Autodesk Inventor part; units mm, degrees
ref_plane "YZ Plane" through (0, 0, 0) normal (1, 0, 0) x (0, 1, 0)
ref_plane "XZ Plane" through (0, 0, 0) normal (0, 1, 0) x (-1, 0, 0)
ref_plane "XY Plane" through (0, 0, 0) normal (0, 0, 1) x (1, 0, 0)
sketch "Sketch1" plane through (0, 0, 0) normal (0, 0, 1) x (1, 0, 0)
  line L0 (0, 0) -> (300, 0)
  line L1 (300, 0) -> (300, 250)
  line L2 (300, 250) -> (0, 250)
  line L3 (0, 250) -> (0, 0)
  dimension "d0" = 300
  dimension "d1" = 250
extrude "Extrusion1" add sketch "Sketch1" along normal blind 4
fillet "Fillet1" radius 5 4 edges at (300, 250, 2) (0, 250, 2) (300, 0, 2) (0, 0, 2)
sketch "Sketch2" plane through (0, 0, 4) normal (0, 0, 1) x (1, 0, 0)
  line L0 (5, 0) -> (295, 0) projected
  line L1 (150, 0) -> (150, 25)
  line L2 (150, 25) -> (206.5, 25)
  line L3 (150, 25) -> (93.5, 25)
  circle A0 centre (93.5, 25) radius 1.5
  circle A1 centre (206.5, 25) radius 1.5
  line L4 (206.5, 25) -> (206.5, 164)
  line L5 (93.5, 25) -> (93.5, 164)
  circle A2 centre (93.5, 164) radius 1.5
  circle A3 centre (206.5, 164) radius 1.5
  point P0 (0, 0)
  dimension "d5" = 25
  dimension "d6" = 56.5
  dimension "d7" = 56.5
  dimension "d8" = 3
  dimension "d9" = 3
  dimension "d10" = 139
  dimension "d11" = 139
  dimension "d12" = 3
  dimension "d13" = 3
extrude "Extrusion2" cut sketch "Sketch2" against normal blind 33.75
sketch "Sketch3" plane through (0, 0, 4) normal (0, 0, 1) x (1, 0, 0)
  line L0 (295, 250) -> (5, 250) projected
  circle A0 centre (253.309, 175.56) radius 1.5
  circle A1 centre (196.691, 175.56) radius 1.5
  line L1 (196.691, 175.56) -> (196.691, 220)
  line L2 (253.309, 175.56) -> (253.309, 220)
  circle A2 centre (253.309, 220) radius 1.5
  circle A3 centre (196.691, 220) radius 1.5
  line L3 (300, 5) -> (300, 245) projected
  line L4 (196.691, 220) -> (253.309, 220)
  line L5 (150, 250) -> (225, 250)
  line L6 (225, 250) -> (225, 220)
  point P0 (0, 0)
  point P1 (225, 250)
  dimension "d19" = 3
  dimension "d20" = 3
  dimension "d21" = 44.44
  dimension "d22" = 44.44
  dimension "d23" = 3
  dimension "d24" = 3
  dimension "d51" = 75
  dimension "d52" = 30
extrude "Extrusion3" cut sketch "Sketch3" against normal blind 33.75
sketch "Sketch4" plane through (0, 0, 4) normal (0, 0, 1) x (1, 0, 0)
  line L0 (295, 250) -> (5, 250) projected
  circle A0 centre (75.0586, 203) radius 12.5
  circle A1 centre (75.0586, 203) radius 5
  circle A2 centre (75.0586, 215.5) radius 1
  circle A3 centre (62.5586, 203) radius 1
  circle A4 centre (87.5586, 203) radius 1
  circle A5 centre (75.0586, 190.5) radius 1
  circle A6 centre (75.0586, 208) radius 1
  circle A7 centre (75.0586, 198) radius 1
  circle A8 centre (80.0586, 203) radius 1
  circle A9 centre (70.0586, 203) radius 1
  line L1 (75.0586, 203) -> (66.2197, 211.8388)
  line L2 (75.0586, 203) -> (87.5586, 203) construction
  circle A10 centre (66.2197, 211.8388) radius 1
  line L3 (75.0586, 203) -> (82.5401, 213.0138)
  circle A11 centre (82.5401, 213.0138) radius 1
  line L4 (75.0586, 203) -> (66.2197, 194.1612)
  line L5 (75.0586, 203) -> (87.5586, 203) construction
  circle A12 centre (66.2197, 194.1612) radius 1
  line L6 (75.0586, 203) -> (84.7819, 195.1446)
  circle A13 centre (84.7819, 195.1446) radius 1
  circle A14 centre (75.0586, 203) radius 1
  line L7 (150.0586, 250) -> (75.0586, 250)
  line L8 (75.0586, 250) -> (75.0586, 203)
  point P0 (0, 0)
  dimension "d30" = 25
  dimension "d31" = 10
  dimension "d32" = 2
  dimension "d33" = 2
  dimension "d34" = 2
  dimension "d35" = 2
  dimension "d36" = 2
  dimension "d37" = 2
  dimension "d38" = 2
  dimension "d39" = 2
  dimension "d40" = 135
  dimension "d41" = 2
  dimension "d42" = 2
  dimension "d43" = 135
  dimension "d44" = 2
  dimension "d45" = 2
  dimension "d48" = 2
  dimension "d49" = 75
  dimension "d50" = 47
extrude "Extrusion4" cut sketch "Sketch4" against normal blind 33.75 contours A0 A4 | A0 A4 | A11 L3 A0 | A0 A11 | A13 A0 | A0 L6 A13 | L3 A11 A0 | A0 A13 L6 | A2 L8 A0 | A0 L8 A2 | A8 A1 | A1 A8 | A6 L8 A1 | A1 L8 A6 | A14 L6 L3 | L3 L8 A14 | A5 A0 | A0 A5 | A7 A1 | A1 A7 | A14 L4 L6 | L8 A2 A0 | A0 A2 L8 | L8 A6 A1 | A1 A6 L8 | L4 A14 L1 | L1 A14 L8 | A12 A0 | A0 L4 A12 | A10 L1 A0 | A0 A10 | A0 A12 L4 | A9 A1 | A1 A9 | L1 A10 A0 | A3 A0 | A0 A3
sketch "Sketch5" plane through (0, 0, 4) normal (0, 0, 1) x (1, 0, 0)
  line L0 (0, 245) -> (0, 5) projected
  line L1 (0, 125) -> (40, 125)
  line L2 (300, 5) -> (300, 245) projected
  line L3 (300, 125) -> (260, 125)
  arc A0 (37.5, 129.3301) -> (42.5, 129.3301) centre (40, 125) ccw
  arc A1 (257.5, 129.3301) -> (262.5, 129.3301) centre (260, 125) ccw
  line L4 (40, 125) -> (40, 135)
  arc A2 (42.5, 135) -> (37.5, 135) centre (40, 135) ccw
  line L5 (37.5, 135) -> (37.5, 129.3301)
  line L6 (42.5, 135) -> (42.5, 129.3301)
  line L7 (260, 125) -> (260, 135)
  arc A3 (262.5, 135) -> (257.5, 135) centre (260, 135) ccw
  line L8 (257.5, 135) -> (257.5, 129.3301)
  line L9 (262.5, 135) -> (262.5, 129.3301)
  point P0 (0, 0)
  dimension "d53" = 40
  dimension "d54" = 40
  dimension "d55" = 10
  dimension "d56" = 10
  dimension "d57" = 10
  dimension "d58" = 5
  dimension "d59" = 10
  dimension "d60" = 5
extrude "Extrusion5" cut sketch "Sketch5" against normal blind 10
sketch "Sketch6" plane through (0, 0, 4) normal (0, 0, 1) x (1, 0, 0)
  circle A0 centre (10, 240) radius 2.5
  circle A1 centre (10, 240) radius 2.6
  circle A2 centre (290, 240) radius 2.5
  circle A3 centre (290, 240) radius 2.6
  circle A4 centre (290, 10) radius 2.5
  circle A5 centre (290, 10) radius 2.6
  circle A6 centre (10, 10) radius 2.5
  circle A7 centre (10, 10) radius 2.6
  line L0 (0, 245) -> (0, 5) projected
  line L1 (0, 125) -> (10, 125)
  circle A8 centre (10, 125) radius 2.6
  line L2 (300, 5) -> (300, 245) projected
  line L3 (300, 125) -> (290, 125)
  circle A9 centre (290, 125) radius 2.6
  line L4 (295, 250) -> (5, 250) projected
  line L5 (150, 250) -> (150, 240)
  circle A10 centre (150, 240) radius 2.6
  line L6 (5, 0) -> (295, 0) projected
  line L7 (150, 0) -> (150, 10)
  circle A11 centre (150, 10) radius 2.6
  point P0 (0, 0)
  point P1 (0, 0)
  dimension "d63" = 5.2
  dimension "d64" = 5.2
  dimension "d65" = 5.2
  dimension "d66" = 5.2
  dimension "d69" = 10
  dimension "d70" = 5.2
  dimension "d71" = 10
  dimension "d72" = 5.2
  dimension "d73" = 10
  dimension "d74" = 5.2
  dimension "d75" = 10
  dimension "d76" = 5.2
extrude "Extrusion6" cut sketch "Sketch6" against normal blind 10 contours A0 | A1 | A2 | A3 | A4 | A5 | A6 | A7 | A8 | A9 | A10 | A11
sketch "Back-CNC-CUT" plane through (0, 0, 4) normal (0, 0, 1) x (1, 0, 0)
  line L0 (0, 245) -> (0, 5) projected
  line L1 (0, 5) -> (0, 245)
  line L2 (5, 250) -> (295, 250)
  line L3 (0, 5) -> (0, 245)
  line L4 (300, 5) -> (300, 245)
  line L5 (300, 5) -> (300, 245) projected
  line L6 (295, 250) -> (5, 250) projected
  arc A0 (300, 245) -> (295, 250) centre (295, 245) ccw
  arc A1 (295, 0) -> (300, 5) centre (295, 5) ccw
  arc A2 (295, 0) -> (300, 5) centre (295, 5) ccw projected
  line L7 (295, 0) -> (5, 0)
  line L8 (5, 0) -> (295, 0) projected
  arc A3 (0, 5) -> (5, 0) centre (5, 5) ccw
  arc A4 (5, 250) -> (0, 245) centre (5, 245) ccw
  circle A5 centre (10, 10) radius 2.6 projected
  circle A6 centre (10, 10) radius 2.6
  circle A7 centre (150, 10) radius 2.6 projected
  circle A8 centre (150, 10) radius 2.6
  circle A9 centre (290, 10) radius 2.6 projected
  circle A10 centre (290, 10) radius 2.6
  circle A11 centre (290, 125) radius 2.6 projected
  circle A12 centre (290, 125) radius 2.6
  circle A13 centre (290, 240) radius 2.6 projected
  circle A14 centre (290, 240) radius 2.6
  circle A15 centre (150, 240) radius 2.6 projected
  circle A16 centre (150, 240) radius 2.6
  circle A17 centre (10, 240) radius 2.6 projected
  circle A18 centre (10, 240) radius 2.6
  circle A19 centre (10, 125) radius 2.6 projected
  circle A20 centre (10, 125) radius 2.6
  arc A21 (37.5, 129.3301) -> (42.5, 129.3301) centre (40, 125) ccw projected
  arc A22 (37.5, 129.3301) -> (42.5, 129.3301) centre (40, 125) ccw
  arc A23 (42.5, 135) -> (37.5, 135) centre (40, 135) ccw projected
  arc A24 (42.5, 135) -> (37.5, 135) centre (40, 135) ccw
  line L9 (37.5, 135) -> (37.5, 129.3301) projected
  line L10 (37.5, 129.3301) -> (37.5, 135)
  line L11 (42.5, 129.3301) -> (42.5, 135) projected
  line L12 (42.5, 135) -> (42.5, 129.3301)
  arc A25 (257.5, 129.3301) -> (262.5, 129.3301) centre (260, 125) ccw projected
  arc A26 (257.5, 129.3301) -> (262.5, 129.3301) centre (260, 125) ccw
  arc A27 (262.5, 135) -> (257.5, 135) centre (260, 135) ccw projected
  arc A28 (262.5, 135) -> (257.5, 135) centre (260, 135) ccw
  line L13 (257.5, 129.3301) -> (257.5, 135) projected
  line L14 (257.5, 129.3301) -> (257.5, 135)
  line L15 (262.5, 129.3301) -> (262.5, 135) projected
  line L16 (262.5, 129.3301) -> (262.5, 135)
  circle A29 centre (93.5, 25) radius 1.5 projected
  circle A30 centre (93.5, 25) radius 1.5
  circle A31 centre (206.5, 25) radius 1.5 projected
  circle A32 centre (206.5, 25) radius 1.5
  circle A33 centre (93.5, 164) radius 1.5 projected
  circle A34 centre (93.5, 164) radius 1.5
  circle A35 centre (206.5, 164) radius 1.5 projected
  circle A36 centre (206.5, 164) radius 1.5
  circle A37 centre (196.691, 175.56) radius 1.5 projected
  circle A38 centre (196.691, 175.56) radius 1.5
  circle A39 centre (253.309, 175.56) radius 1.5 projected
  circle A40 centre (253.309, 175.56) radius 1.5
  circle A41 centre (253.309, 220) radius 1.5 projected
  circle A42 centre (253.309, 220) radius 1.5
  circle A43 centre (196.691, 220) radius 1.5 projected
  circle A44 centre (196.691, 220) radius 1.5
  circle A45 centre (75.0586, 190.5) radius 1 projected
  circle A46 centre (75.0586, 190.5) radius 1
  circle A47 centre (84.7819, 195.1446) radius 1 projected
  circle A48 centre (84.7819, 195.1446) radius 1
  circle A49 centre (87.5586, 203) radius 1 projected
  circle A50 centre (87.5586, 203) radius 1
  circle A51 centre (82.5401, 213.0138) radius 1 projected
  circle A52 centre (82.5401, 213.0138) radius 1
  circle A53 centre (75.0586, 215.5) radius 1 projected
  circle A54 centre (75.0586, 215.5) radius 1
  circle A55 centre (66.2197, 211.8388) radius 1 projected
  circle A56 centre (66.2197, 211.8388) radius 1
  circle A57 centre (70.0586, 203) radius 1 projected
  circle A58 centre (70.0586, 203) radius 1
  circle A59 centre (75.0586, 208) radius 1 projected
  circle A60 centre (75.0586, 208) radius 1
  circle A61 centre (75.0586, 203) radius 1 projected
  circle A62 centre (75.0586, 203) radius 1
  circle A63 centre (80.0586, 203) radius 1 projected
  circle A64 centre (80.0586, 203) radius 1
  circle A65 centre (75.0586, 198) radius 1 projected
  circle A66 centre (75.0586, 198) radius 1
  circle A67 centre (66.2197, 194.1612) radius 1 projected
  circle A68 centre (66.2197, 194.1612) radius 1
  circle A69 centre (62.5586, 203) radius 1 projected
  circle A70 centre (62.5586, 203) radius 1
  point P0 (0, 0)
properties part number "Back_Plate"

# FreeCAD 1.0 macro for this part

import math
import FreeCAD as App
import Part
import Sketcher

V = App.Vector


def edges_at(feature, points):
    """Names of the edges that pass closest to the given points."""
    edges = feature.Shape.Edges
    near = lambda p: min(range(len(edges)), key=lambda i: edges[i].distToShape(Part.Vertex(*p))[0])
    return sorted({f"Edge{near(p) + 1}" for p in points})

doc = App.newDocument("Part")
body = doc.addObject("PartDesign::Body", "Body")

sketch1 = doc.addObject("Sketcher::SketchObject", "Sketch")
body.addObject(sketch1)
sketch1.AttachmentSupport = (doc.XY_Plane, [""])
sketch1.MapMode = "FlatFace"
sketch1.addGeometry([
    Part.LineSegment(V(0, 250, 0), V(0, 0, 0)),
    Part.LineSegment(V(0, 0, 0), V(300, 0, 0)),
    Part.LineSegment(V(300, 0, 0), V(300, 250, 0)),
    Part.LineSegment(V(300, 250, 0), V(0, 250, 0)),
], False)
sketch1.addConstraint([
    Sketcher.Constraint("Coincident", 0, 2, 1, 1),
    Sketcher.Constraint("Coincident", 1, 2, 2, 1),
    Sketcher.Constraint("Coincident", 2, 2, 3, 1),
    Sketcher.Constraint("Coincident", 3, 2, 0, 1),
    Sketcher.Constraint("Vertical", 0),
    Sketcher.Constraint("Horizontal", 1),
    Sketcher.Constraint("Vertical", 2),
    Sketcher.Constraint("Horizontal", 3),
    Sketcher.Constraint("Coincident", 0, 2, -1, 1),
    Sketcher.Constraint("DistanceX", 1, 1, 1, 2, 300.0),
    Sketcher.Constraint("DistanceY", 0, 2, 0, 1, 250.0),
])
pad1 = doc.addObject("PartDesign::Pad", "Pad")
body.addObject(pad1)
pad1.Profile = sketch1
pad1.Length = 4
doc.recompute()

fillet = doc.addObject("PartDesign::Fillet", "Fillet")
body.addObject(fillet)
fillet.Base = (pad1, edges_at(pad1, [
    (300, 250, 2),
    (0, 250, 2),
    (300, 0, 2),
    (0, 0, 2),
]))
fillet.Radius = 5

sketch2 = doc.addObject("Sketcher::SketchObject", "Sketch001")
body.addObject(sketch2)
sketch2.AttachmentSupport = (doc.XY_Plane, [""])
sketch2.MapMode = "FlatFace"
sketch2.AttachmentOffset = App.Placement(V(0, 0, 4), App.Rotation())
sketch2.addGeometry([
    Part.Circle(V(206.5, 164, 0), V(0, 0, 1), 1.5),
    Part.Circle(V(206.5, 25, 0), V(0, 0, 1), 1.5),
    Part.Circle(V(93.5, 164, 0), V(0, 0, 1), 1.5),
    Part.Circle(V(93.5, 25, 0), V(0, 0, 1), 1.5),
], False)
sketch2.addConstraint([
    Sketcher.Constraint("Equal", 0, 1),
    Sketcher.Constraint("Equal", 1, 2),
    Sketcher.Constraint("Equal", 2, 3),
    Sketcher.Constraint("Horizontal", 0, 3, 2, 3),
    Sketcher.Constraint("Horizontal", 1, 3, 3, 3),
    Sketcher.Constraint("Vertical", 0, 3, 1, 3),
    Sketcher.Constraint("Vertical", 2, 3, 3, 3),
    Sketcher.Constraint("Diameter", 0, 3.0),
    Sketcher.Constraint("DistanceY", -1, 1, 1, 3, 25.0),
    Sketcher.Constraint("DistanceY", 1, 3, 0, 3, 139.0),
    Sketcher.Constraint("DistanceX", 2, 3, 0, 3, 113.0),
    Sketcher.Constraint("DistanceX", -1, 1, 0, 3, 206.5),
])
pocket1 = doc.addObject("PartDesign::Pocket", "Pocket")
body.addObject(pocket1)
pocket1.Profile = sketch2
pocket1.Length = 33.75

sketch3 = doc.addObject("Sketcher::SketchObject", "Sketch002")
body.addObject(sketch3)
sketch3.AttachmentSupport = (doc.XY_Plane, [""])
sketch3.MapMode = "FlatFace"
sketch3.AttachmentOffset = App.Placement(V(0, 0, 4), App.Rotation())
sketch3.addGeometry([
    Part.Circle(V(253.3, 175.6, 0), V(0, 0, 1), 1.5),
    Part.Circle(V(196.7, 175.6, 0), V(0, 0, 1), 1.5),
    Part.Circle(V(196.7, 220, 0), V(0, 0, 1), 1.5),
    Part.Circle(V(253.3, 220, 0), V(0, 0, 1), 1.5),
], False)
sketch3.addConstraint([
    Sketcher.Constraint("Equal", 0, 1),
    Sketcher.Constraint("Equal", 1, 2),
    Sketcher.Constraint("Equal", 2, 3),
    Sketcher.Constraint("Horizontal", 0, 3, 1, 3),
    Sketcher.Constraint("Horizontal", 2, 3, 3, 3),
    Sketcher.Constraint("Vertical", 1, 3, 2, 3),
    Sketcher.Constraint("Vertical", 0, 3, 3, 3),
    Sketcher.Constraint("Diameter", 0, 3.0),
    Sketcher.Constraint("DistanceY", 1, 3, 2, 3, 44.44),
    Sketcher.Constraint("DistanceY", -1, 1, 2, 3, 220.0),
    Sketcher.Constraint("DistanceX", -1, 1, 0, 3, 253.309),
    Sketcher.Constraint("DistanceX", -1, 1, 1, 3, 196.691),
])
pocket2 = doc.addObject("PartDesign::Pocket", "Pocket001")
body.addObject(pocket2)
pocket2.Profile = sketch3
pocket2.Length = 33.75

sketch4 = doc.addObject("Sketcher::SketchObject", "Sketch003")
body.addObject(sketch4)
sketch4.AttachmentSupport = (doc.XY_Plane, [""])
sketch4.MapMode = "FlatFace"
sketch4.AttachmentOffset = App.Placement(V(0, 0, 4), App.Rotation())
sketch4.addGeometry([
    Part.Circle(V(87.6, 203, 0), V(0, 0, 1), 1),
    Part.Circle(V(82.5, 213, 0), V(0, 0, 1), 1),
    Part.Circle(V(84.8, 195.1, 0), V(0, 0, 1), 1),
    Part.Circle(V(75.1, 215.5, 0), V(0, 0, 1), 1),
    Part.Circle(V(80.1, 203, 0), V(0, 0, 1), 1),
    Part.Circle(V(75.1, 208, 0), V(0, 0, 1), 1),
    Part.Circle(V(75.1, 203, 0), V(0, 0, 1), 1),
    Part.Circle(V(75.1, 190.5, 0), V(0, 0, 1), 1),
    Part.Circle(V(75.1, 198, 0), V(0, 0, 1), 1),
    Part.Circle(V(66.2, 194.2, 0), V(0, 0, 1), 1),
    Part.Circle(V(66.2, 211.8, 0), V(0, 0, 1), 1),
    Part.Circle(V(70.1, 203, 0), V(0, 0, 1), 1),
    Part.Circle(V(62.6, 203, 0), V(0, 0, 1), 1),
], False)
sketch4.addConstraint([
    Sketcher.Constraint("Equal", 0, 1),
    Sketcher.Constraint("Equal", 1, 2),
    Sketcher.Constraint("Equal", 2, 3),
    Sketcher.Constraint("Equal", 3, 4),
    Sketcher.Constraint("Equal", 4, 5),
    Sketcher.Constraint("Equal", 5, 6),
    Sketcher.Constraint("Equal", 6, 7),
    Sketcher.Constraint("Equal", 7, 8),
    Sketcher.Constraint("Equal", 8, 9),
    Sketcher.Constraint("Equal", 9, 10),
    Sketcher.Constraint("Equal", 10, 11),
    Sketcher.Constraint("Equal", 11, 12),
    Sketcher.Constraint("Horizontal", 0, 3, 4, 3),
    Sketcher.Constraint("Horizontal", 4, 3, 6, 3),
    Sketcher.Constraint("Horizontal", 6, 3, 11, 3),
    Sketcher.Constraint("Horizontal", 11, 3, 12, 3),
    Sketcher.Constraint("Vertical", 3, 3, 5, 3),
    Sketcher.Constraint("Vertical", 5, 3, 6, 3),
    Sketcher.Constraint("Vertical", 6, 3, 7, 3),
    Sketcher.Constraint("Vertical", 7, 3, 8, 3),
    Sketcher.Constraint("Vertical", 9, 3, 10, 3),
    Sketcher.Constraint("Diameter", 0, 2.0),
    Sketcher.Constraint("DistanceY", 8, 3, 5, 3, 10.0),
    Sketcher.Constraint("DistanceY", -1, 1, 0, 3, 203.0),
    Sketcher.Constraint("DistanceY", -1, 1, 5, 3, 208.0),
    Sketcher.Constraint("DistanceX", 3, 3, 4, 3, 5.0),
    Sketcher.Constraint("DistanceX", 11, 3, 6, 3, 5.0),
    Sketcher.Constraint("DistanceY", -1, 1, 3, 3, 215.5),
    Sketcher.Constraint("DistanceY", -1, 1, 7, 3, 190.5),
    Sketcher.Constraint("DistanceX", 3, 3, 0, 3, 12.5),
    Sketcher.Constraint("DistanceX", 12, 3, 11, 3, 7.5),
    Sketcher.Constraint("DistanceX", -1, 1, 1, 3, 82.54),
    Sketcher.Constraint("DistanceX", -1, 1, 2, 3, 84.782),
    Sketcher.Constraint("DistanceX", 9, 3, 7, 3, 8.839),
    Sketcher.Constraint("DistanceY", 10, 3, 1, 3, 1.175),
    Sketcher.Constraint("DistanceX", -1, 1, 0, 3, 87.5586),
    Sketcher.Constraint("DistanceY", -1, 1, 1, 3, 213.0138),
    Sketcher.Constraint("DistanceY", -1, 1, 2, 3, 195.1446),
    Sketcher.Constraint("DistanceY", -1, 1, 9, 3, 194.1612),
])
pocket3 = doc.addObject("PartDesign::Pocket", "Pocket002")
body.addObject(pocket3)
pocket3.Profile = sketch4
pocket3.Length = 33.75

sketch5 = doc.addObject("Sketcher::SketchObject", "Sketch004")
body.addObject(sketch5)
sketch5.AttachmentSupport = (doc.XY_Plane, [""])
sketch5.MapMode = "FlatFace"
sketch5.AttachmentOffset = App.Placement(V(0, 0, 4), App.Rotation())
sketch5.addGeometry([
    Part.LineSegment(V(37.5, 135, 0), V(37.5, 129.3, 0)),
    Part.ArcOfCircle(Part.Circle(V(40, 125, 0), V(0, 0, 1), 5), math.radians(120), math.radians(420)),
    Part.LineSegment(V(42.5, 129.3, 0), V(42.5, 135, 0)),
    Part.ArcOfCircle(Part.Circle(V(40, 135, 0), V(0, 0, 1), 2.5), math.radians(0), math.radians(180)),
    Part.LineSegment(V(257.5, 135, 0), V(257.5, 129.3, 0)),
    Part.ArcOfCircle(Part.Circle(V(260, 125, 0), V(0, 0, 1), 5), math.radians(120), math.radians(420)),
    Part.LineSegment(V(262.5, 129.3, 0), V(262.5, 135, 0)),
    Part.ArcOfCircle(Part.Circle(V(260, 135, 0), V(0, 0, 1), 2.5), math.radians(0), math.radians(180)),
], False)
sketch5.addConstraint([
    Sketcher.Constraint("Coincident", 0, 2, 1, 1),
    Sketcher.Constraint("Coincident", 1, 2, 2, 1),
    Sketcher.Constraint("Tangent", 2, 2, 3, 1),
    Sketcher.Constraint("Tangent", 3, 2, 0, 1),
    Sketcher.Constraint("Coincident", 4, 2, 5, 1),
    Sketcher.Constraint("Coincident", 5, 2, 6, 1),
    Sketcher.Constraint("Tangent", 6, 2, 7, 1),
    Sketcher.Constraint("Tangent", 7, 2, 4, 1),
    Sketcher.Constraint("Vertical", 0),
    Sketcher.Constraint("Vertical", 2),
    Sketcher.Constraint("Vertical", 4),
    Sketcher.Constraint("Vertical", 6),
    Sketcher.Constraint("Equal", 1, 5),
    Sketcher.Constraint("Equal", 3, 7),
    Sketcher.Constraint("Horizontal", 1, 3, 5, 3),
    Sketcher.Constraint("Horizontal", 3, 3, 7, 3),
    Sketcher.Constraint("Horizontal", 0, 2, 1, 2),
    Sketcher.Constraint("Horizontal", 1, 2, 4, 2),
    Sketcher.Constraint("Radius", 1, 5.0),
    Sketcher.Constraint("Radius", 3, 2.5),
    Sketcher.Constraint("DistanceX", -1, 1, 1, 3, 40.0),
    Sketcher.Constraint("DistanceY", 1, 3, 3, 3, 10.0),
    Sketcher.Constraint("DistanceY", -1, 1, 1, 3, 125.0),
    Sketcher.Constraint("DistanceX", -1, 1, 5, 3, 260.0),
])
pocket4 = doc.addObject("PartDesign::Pocket", "Pocket003")
body.addObject(pocket4)
pocket4.Profile = sketch5
pocket4.Length = 10

sketch6 = doc.addObject("Sketcher::SketchObject", "Sketch005")
body.addObject(sketch6)
sketch6.AttachmentSupport = (doc.XY_Plane, [""])
sketch6.MapMode = "FlatFace"
sketch6.AttachmentOffset = App.Placement(V(0, 0, 4), App.Rotation())
sketch6.addGeometry([
    Part.Circle(V(10, 240, 0), V(0, 0, 1), 2.6),
    Part.Circle(V(290, 240, 0), V(0, 0, 1), 2.6),
    Part.Circle(V(290, 10, 0), V(0, 0, 1), 2.6),
    Part.Circle(V(10, 10, 0), V(0, 0, 1), 2.6),
    Part.Circle(V(10, 125, 0), V(0, 0, 1), 2.6),
    Part.Circle(V(290, 125, 0), V(0, 0, 1), 2.6),
    Part.Circle(V(150, 240, 0), V(0, 0, 1), 2.6),
    Part.Circle(V(150, 10, 0), V(0, 0, 1), 2.6),
], False)
sketch6.addConstraint([
    Sketcher.Constraint("Equal", 0, 1),
    Sketcher.Constraint("Equal", 1, 2),
    Sketcher.Constraint("Equal", 2, 3),
    Sketcher.Constraint("Equal", 3, 4),
    Sketcher.Constraint("Equal", 4, 5),
    Sketcher.Constraint("Equal", 5, 6),
    Sketcher.Constraint("Equal", 6, 7),
    Sketcher.Constraint("Horizontal", 0, 3, 1, 3),
    Sketcher.Constraint("Horizontal", 2, 3, 3, 3),
    Sketcher.Constraint("Horizontal", 4, 3, 5, 3),
    Sketcher.Constraint("Horizontal", 1, 3, 6, 3),
    Sketcher.Constraint("Horizontal", 3, 3, 7, 3),
    Sketcher.Constraint("Vertical", 1, 3, 2, 3),
    Sketcher.Constraint("Vertical", 0, 3, 3, 3),
    Sketcher.Constraint("Vertical", 3, 3, 4, 3),
    Sketcher.Constraint("Vertical", 2, 3, 5, 3),
    Sketcher.Constraint("Vertical", 6, 3, 7, 3),
    Sketcher.Constraint("Diameter", 0, 5.2),
    Sketcher.Constraint("DistanceX", -1, 1, 0, 3, 10.0),
    Sketcher.Constraint("DistanceY", -1, 1, 2, 3, 10.0),
    Sketcher.Constraint("DistanceY", -1, 1, 0, 3, 240.0),
    Sketcher.Constraint("DistanceX", -1, 1, 1, 3, 290.0),
    Sketcher.Constraint("DistanceY", -1, 1, 4, 3, 125.0),
    Sketcher.Constraint("DistanceX", -1, 1, 6, 3, 150.0),
])
pocket5 = doc.addObject("PartDesign::Pocket", "Pocket004")
body.addObject(pocket5)
pocket5.Profile = sketch6
pocket5.Length = 10

doc.recompute()
